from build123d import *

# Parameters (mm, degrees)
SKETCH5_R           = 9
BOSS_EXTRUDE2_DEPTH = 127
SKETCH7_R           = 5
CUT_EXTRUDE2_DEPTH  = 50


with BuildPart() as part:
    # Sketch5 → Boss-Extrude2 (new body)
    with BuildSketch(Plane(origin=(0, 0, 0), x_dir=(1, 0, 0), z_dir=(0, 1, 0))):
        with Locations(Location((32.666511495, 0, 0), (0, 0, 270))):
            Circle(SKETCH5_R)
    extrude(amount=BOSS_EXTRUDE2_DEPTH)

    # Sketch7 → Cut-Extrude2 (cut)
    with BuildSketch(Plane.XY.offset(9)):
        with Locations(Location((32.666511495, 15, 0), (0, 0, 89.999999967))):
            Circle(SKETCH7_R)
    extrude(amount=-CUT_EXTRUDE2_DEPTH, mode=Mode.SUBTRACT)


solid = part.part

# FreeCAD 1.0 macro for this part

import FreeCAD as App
import Part
import Sketcher
from FreeCAD import Vector

doc = App.newDocument("Part")
params = doc.addObject("Spreadsheet::Sheet", "Params")
for row, (alias, value) in enumerate([
    ("sketch1_diameter", "18 mm"),
    ("pad1_length", "127 mm"),
    ("sketch2_diameter", "10 mm"),
    ("pocket1_length", "50 mm"),
], start=1):
    params.set(f"A{row}", alias)
    params.set(f"B{row}", "=" + value)
    params.setAlias(f"B{row}", alias)

body = doc.addObject("PartDesign::Body", "Body")

sketch1 = body.newObject("Sketcher::SketchObject", "Sketch")
sketch1.AttachmentSupport = (doc.getObject("XZ_Plane"), [""])
sketch1.MapMode = "FlatFace"
sketch1.addGeometry(Part.Circle(Vector(32.666511, 0, 0), Vector(0, 0, 1), 9), False)
sketch1.addConstraint([
    Sketcher.Constraint("PointOnObject", 0, 3, -1),
    Sketcher.Constraint("Diameter", 0, 18.0),
    Sketcher.Constraint("DistanceX", -1, 1, 0, 3, 32.666511),
])
sketch1.setExpression("Constraints[1]", "Params.sketch1_diameter")
pad1 = body.newObject("PartDesign::Pad", "Pad")
pad1.Profile = sketch1
pad1.setExpression("Length", "Params.pad1_length")
pad1.Reversed = True

sketch2 = body.newObject("Sketcher::SketchObject", "Sketch001")
sketch2.AttachmentSupport = (doc.getObject("XY_Plane"), [""])
sketch2.MapMode = "FlatFace"
sketch2.AttachmentOffset = App.Placement(Vector(0, 0, 9), App.Rotation())
sketch2.addGeometry(Part.Circle(Vector(32.666511, 15, 0), Vector(0, 0, 1), 5), False)
sketch2.addConstraint([
    Sketcher.Constraint("Diameter", 0, 10.0),
    Sketcher.Constraint("DistanceY", -1, 1, 0, 3, 15.0),
    Sketcher.Constraint("DistanceX", -1, 1, 0, 3, 32.666511),
])
sketch2.setExpression("Constraints[0]", "Params.sketch2_diameter")
pocket1 = body.newObject("PartDesign::Pocket", "Pocket")
pocket1.Profile = sketch2
pocket1.setExpression("Length", "Params.pocket1_length")

doc.recompute()
